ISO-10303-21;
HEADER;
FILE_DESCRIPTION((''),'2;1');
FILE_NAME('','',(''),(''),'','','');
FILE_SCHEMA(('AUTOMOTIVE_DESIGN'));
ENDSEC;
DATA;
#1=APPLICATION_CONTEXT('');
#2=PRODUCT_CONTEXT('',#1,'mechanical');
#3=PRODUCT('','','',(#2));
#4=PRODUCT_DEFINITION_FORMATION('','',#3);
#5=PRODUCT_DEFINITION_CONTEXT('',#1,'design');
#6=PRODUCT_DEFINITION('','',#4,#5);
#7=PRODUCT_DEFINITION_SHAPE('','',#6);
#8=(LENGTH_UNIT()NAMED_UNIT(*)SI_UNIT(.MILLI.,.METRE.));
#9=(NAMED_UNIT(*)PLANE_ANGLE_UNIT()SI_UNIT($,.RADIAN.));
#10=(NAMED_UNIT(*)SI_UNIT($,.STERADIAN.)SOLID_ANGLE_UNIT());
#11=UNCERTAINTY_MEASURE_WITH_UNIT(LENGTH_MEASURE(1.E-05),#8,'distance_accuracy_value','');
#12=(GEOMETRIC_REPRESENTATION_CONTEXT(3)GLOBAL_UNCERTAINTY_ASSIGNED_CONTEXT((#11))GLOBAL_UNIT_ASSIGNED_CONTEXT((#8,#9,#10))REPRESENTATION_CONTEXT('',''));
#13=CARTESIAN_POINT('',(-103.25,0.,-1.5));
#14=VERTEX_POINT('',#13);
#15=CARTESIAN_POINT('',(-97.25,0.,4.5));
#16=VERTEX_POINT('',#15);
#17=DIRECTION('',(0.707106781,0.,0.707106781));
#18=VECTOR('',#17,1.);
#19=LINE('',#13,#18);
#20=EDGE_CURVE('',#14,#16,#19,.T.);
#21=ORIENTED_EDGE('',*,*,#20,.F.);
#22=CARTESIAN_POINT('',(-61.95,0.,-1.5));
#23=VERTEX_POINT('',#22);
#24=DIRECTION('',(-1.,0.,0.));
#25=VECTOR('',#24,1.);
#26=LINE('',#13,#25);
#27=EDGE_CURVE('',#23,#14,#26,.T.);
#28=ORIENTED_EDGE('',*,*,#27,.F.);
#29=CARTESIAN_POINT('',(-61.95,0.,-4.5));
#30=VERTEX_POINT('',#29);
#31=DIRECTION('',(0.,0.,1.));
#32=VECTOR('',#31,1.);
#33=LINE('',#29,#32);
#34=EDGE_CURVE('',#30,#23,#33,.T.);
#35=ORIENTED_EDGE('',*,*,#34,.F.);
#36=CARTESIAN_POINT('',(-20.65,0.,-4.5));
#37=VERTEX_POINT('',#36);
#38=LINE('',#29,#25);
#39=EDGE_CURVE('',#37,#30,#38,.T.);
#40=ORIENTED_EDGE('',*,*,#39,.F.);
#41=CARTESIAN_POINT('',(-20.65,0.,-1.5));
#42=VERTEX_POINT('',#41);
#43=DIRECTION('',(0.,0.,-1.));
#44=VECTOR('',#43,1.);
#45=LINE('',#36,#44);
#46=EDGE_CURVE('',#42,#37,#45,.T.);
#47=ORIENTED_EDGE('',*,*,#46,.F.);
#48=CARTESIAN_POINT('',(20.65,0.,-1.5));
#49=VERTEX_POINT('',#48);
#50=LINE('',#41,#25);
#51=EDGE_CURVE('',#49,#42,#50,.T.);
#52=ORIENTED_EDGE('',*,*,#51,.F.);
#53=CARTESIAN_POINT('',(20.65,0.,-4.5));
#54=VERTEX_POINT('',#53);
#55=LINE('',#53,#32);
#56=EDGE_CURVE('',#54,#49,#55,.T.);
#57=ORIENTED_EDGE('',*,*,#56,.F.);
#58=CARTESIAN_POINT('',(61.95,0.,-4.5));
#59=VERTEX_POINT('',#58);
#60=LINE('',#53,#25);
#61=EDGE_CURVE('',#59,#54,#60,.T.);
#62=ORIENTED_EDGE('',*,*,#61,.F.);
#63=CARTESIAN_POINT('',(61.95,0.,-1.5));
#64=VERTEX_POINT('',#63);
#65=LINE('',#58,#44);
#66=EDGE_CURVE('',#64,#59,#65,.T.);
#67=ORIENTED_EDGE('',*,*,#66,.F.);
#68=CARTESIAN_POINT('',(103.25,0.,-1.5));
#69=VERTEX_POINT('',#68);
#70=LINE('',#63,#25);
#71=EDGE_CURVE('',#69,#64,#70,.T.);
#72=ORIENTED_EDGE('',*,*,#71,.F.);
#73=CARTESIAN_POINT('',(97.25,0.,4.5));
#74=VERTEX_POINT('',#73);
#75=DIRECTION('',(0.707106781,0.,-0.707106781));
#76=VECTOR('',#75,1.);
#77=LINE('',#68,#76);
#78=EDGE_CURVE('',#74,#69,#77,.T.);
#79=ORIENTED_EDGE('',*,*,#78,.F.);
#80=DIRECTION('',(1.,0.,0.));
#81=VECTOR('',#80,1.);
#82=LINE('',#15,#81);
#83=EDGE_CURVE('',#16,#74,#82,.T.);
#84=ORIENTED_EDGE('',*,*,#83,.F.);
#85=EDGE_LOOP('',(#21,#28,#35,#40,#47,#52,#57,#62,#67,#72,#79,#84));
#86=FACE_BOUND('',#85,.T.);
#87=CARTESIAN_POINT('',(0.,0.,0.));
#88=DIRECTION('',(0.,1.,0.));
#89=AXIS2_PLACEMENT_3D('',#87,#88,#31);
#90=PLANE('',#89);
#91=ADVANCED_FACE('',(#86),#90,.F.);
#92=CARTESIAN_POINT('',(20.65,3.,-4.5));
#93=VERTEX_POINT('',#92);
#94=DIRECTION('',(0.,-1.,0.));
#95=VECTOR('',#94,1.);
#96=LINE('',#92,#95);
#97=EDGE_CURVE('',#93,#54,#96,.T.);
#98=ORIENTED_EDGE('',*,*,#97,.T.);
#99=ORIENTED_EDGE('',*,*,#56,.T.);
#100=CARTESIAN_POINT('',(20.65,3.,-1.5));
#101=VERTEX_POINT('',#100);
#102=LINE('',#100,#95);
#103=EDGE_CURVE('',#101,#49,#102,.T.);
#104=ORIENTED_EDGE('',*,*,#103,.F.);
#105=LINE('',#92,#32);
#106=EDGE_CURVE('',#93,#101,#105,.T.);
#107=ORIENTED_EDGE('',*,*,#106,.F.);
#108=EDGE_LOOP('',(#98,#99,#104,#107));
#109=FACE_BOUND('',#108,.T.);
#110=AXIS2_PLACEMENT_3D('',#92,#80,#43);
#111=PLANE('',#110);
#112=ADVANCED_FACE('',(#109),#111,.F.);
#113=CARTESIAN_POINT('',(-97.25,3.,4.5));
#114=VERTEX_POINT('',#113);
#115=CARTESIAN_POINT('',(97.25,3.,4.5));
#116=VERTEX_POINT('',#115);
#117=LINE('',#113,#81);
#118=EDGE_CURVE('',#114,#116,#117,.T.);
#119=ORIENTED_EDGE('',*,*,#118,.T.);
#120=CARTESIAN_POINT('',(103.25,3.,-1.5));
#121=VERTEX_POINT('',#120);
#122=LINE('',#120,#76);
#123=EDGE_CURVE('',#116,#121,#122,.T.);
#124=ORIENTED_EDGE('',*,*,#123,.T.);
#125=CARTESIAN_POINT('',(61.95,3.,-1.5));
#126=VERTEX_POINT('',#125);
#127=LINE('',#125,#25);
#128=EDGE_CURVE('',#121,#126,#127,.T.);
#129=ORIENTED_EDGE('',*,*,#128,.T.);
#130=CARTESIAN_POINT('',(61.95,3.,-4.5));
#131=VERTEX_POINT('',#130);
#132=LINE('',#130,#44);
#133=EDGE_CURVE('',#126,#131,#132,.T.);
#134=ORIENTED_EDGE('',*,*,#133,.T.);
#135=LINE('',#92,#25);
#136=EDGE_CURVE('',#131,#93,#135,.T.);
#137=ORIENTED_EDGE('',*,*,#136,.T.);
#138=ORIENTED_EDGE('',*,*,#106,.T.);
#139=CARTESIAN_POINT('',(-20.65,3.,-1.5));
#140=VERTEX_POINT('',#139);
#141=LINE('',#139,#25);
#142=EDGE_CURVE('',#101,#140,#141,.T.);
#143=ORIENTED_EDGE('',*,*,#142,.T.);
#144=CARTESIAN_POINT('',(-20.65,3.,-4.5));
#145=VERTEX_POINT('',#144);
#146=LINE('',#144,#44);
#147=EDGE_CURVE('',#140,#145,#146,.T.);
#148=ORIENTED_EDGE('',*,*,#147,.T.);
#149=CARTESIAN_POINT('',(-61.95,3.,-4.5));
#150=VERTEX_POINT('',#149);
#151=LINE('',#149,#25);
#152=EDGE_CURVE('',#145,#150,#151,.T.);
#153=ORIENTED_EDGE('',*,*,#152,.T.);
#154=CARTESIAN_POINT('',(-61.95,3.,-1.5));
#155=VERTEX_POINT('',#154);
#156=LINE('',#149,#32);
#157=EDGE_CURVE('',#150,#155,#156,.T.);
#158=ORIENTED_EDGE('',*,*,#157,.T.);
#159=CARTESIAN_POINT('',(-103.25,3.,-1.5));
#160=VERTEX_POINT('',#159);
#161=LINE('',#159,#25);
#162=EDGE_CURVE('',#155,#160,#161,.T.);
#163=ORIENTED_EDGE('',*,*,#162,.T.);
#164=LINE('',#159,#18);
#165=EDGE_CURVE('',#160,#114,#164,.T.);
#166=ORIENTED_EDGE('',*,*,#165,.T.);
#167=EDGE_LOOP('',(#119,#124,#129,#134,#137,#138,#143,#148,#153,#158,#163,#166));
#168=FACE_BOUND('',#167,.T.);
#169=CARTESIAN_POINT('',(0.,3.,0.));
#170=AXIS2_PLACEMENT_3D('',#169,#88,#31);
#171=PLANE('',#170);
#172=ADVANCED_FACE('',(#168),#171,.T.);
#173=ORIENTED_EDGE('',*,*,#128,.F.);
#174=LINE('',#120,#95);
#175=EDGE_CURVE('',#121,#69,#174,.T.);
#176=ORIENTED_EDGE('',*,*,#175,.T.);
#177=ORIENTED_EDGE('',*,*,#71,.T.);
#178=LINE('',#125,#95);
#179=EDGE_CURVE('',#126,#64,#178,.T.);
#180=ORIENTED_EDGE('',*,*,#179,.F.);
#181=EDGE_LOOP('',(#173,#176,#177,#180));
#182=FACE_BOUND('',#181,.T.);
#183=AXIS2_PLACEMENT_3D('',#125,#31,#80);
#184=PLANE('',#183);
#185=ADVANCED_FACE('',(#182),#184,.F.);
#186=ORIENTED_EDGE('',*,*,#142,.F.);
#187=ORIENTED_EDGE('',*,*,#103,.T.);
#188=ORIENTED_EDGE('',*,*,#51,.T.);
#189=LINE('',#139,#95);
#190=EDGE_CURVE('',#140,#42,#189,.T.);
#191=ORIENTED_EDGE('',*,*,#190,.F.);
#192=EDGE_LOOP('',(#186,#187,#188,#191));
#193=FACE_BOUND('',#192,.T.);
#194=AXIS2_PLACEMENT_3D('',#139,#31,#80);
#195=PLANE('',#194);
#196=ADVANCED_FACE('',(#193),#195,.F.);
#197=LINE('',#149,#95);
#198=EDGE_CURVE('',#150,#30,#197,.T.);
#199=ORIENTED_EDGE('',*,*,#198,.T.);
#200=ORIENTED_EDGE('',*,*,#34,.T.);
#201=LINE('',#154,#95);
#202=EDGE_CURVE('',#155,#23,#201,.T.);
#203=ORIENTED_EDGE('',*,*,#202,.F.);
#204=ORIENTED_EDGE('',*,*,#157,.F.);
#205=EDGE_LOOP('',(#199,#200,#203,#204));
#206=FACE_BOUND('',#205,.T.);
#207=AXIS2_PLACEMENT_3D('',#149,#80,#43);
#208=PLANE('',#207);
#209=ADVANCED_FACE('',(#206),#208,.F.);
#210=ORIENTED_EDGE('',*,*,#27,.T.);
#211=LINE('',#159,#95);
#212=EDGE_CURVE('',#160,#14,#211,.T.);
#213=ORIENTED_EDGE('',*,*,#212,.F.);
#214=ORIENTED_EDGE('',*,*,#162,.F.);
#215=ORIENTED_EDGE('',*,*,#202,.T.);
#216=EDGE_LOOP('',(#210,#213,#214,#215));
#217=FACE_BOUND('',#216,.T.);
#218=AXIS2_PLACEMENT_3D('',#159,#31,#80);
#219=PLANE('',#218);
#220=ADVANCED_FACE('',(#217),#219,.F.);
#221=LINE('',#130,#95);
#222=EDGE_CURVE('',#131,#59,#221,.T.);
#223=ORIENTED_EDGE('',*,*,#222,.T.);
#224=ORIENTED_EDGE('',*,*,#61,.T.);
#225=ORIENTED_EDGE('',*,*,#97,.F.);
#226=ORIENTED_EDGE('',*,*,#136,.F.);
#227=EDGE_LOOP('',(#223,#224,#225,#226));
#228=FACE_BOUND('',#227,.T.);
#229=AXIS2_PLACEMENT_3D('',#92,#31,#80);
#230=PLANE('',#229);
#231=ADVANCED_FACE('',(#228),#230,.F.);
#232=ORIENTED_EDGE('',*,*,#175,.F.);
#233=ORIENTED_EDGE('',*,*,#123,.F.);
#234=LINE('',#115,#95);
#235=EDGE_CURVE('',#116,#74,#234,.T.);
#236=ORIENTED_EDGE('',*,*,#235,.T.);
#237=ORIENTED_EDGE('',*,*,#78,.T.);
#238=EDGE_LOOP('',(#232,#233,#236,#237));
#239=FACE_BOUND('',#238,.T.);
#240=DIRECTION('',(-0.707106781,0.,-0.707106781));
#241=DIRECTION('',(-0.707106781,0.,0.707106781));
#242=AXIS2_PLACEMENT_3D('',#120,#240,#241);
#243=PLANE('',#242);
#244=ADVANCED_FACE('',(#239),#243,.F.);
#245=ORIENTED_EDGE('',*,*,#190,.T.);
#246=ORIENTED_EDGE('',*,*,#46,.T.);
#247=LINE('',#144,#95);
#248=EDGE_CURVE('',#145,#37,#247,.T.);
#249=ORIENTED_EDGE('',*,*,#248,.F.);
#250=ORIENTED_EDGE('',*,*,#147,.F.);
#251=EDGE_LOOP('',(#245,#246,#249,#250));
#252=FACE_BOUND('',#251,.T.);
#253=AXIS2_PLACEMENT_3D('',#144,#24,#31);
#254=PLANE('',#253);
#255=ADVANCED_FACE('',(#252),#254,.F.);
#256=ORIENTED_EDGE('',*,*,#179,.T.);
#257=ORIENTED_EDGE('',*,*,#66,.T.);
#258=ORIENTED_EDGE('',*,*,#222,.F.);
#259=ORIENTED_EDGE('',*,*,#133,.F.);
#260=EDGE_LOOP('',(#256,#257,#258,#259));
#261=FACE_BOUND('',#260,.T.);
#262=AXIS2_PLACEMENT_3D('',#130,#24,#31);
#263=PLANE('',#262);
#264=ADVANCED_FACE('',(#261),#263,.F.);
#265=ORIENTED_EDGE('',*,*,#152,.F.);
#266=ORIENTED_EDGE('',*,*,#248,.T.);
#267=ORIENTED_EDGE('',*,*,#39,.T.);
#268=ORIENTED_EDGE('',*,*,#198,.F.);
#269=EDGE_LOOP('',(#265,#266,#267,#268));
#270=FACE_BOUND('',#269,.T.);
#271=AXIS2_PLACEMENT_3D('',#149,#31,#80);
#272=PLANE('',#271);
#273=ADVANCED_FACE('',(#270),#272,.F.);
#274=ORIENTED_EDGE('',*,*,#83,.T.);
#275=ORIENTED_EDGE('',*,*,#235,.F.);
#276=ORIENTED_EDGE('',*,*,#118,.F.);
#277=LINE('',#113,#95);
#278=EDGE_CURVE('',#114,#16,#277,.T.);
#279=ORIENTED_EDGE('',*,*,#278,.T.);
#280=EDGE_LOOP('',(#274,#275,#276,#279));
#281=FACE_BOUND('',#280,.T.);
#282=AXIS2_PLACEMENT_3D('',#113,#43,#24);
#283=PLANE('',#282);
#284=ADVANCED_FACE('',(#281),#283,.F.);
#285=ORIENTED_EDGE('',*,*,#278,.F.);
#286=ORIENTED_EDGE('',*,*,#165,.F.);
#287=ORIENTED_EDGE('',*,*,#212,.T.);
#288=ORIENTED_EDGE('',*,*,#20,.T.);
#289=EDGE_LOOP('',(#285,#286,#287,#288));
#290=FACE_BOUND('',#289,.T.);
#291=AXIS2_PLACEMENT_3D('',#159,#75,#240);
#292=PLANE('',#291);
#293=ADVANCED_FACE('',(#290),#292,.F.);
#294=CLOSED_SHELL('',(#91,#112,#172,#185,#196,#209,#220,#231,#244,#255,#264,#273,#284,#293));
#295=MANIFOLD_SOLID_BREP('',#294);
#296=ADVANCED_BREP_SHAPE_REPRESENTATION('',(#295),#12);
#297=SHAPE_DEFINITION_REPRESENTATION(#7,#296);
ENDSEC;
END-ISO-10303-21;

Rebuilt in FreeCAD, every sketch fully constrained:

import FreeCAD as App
import Part
import Sketcher

V = App.Vector


def add_polygon(sketch, points):
    """Adds a closed chain of lines whose ends are joined by coincident constraints."""
    first, n = sketch.GeometryCount, len(points)
    for a, b in zip(points, points[1:] + points[:1]):
        sketch.addGeometry(Part.LineSegment(App.Vector(*a, 0), App.Vector(*b, 0)), False)
    for i in range(n):
        sketch.addConstraint(Sketcher.Constraint("Coincident", first + i, 2, first + (i + 1) % n, 1))

doc = App.newDocument("Part")
body = doc.addObject("PartDesign::Body", "Body")

sketch1 = body.newObject("Sketcher::SketchObject", "Sketch")
sketch1.AttachmentSupport = (doc.getObject("XZ_Plane"), [""])
sketch1.MapMode = "FlatFace"
add_polygon(sketch1, [(-20.65, -4.5), (-61.95, -4.5), (-61.95, -1.5), (-103.25, -1.5), (-97.25, 4.5), (97.25, 4.5), (103.25, -1.5), (61.95, -1.5), (61.95, -4.5), (20.65, -4.5), (20.65, -1.5), (-20.65, -1.5)])
sketch1.addConstraint(Sketcher.Constraint("Horizontal", 0))
sketch1.addConstraint(Sketcher.Constraint("Vertical", 1))
sketch1.addConstraint(Sketcher.Constraint("Horizontal", 2))
sketch1.addConstraint(Sketcher.Constraint("Horizontal", 4))
sketch1.addConstraint(Sketcher.Constraint("Horizontal", 6))
sketch1.addConstraint(Sketcher.Constraint("Vertical", 7))
sketch1.addConstraint(Sketcher.Constraint("Horizontal", 8))
sketch1.addConstraint(Sketcher.Constraint("Vertical", 9))
sketch1.addConstraint(Sketcher.Constraint("Horizontal", 10))
sketch1.addConstraint(Sketcher.Constraint("Vertical", 11))
sketch1.addConstraint(Sketcher.Constraint("Symmetric", 2, 2, 5, 2, -2))
sketch1.addConstraint(Sketcher.Constraint("Symmetric", 0, 2, 7, 2, -2))
sketch1.addConstraint(Sketcher.Constraint("Perpendicular", 3, 5))
sketch1.addConstraint(Sketcher.Constraint("Horizontal", 6, 2, 9, 2))
sketch1.addConstraint(Sketcher.Constraint("Equal", 0, 2))
sketch1.addConstraint(Sketcher.Constraint("Equal", 6, 8))
sketch1.addConstraint(Sketcher.Constraint("Equal", 8, 10))
sketch1.addConstraint(Sketcher.Constraint("Equal", 3, 5))
sketch1.addConstraint(Sketcher.Constraint("DistanceY", 1, 1, 1, 2, 3.0))
sketch1.addConstraint(Sketcher.Constraint("DistanceX", 0, 2, 0, 1, 41.3))
sketch1.addConstraint(Sketcher.Constraint("DistanceX", 4, 1, 4, 2, 194.5))
sketch1.addConstraint(Sketcher.Constraint("DistanceY", 0, 2, -1, 1, 4.5))
pad1 = body.newObject("PartDesign::Pad", "Pad")
pad1.Profile = sketch1
pad1.Length = 3
pad1.Reversed = True

doc.recompute()
